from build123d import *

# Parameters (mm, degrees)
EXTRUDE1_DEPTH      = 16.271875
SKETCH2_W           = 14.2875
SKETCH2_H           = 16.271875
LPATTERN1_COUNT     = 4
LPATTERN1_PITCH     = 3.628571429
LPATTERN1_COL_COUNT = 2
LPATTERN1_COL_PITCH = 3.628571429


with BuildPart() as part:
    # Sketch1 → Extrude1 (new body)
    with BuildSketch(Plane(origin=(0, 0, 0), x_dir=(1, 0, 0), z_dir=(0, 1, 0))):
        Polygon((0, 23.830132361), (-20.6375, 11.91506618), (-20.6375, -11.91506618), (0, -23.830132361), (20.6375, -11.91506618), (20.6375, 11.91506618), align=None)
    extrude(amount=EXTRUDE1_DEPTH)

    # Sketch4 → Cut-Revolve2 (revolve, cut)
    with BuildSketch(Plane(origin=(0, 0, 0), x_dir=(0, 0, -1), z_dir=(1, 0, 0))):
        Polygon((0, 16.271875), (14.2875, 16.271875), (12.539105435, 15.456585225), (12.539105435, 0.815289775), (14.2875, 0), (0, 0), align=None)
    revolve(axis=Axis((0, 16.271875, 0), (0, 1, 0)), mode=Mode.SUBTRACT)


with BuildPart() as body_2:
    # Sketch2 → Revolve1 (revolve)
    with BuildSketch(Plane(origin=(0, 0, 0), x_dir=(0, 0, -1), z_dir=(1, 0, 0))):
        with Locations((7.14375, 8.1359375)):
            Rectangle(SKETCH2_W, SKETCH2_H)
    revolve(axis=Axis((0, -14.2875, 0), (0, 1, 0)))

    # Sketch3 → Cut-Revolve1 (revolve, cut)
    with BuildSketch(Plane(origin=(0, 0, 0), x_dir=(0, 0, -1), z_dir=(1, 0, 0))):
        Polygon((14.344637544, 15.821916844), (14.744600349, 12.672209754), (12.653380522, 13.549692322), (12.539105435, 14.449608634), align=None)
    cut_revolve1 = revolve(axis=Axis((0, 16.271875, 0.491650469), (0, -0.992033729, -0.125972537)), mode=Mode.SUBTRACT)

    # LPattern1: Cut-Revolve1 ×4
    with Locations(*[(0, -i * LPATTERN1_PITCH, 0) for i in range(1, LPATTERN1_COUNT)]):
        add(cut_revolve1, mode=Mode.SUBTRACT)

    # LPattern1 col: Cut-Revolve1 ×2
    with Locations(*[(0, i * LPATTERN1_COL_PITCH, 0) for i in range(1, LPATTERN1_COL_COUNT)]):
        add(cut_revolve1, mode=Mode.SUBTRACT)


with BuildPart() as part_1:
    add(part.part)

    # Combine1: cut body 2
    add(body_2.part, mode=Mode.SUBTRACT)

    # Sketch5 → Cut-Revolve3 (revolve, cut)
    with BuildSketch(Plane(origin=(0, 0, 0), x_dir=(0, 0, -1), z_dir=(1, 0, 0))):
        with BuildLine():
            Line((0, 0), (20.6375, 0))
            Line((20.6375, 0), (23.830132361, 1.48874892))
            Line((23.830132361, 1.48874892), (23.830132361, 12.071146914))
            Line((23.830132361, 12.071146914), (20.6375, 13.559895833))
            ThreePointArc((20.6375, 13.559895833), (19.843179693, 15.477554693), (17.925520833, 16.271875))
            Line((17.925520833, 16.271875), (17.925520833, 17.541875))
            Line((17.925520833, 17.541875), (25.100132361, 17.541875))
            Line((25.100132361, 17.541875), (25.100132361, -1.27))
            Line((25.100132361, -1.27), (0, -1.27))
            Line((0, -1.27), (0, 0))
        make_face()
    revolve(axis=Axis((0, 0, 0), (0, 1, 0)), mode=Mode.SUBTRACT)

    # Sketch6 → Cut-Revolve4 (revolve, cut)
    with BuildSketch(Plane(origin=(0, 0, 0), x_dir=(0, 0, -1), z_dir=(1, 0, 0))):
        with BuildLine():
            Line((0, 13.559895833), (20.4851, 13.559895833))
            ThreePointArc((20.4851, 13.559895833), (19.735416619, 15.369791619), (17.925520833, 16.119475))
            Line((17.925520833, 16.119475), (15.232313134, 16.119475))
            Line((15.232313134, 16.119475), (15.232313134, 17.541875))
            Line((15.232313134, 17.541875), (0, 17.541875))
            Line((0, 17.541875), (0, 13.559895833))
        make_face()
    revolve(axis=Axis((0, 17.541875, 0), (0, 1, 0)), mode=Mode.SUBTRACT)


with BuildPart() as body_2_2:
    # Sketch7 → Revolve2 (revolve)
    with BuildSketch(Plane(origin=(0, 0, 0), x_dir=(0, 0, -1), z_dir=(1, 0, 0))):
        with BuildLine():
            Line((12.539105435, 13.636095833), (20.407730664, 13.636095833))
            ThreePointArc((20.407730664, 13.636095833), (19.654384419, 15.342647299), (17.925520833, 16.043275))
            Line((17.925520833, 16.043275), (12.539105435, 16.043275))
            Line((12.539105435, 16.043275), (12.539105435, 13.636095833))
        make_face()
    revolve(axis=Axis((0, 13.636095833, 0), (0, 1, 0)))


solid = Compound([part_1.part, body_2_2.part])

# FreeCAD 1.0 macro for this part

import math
import FreeCAD as App
import Part
import Sketcher
Q = App.Units.Quantity

doc = App.newDocument("Part")
params = doc.addObject("Spreadsheet::Sheet", "Params")
for row, (alias, value) in enumerate([
    ("pad1_length", "0.640625 in"),
    ("sketch2_width", "0.640625 in"),
    ("sketch2_height", "0.5625 in"),
    ("groove_angle", "360 deg"),
    ("sketch3_width", "0.640625 in"),
    ("sketch3_height", "0.5625 in"),
    ("revolution_angle", "360 deg"),
    ("sketch4_length", "0.125 in"),
    ("groove2_angle", "360 deg"),
    ("linearpattern_pitch", "3.628571 mm"),
    ("linearpattern2_pitch", "3.628571 mm"),
    ("sketch5_width", "0.05 in"),
    ("sketch5_height", "0.8125 in"),
    ("groove3_angle", "360 deg"),
    ("sketch6_width", "0.056 in"),
    ("groove4_angle", "360 deg"),
    ("revolution2_angle", "360 deg"),
], start=1):
    params.set(f"A{row}", alias)
    params.set(f"B{row}", "=" + value)
    params.setAlias(f"B{row}", alias)

body = doc.addObject("PartDesign::Body", "Body")

sketch1 = body.newObject("Sketcher::SketchObject", "Sketch")
sketch1.AttachmentSupport = (doc.getObject("XZ_Plane"), [""])
sketch1.MapMode = "FlatFace"
sketch1.addGeometry(Part.LineSegment(App.Vector(0, -24, 0), App.Vector(-21, -12, 0)), False)
sketch1.addGeometry(Part.LineSegment(App.Vector(-21, -12, 0), App.Vector(-21, 12, 0)), False)
sketch1.addGeometry(Part.LineSegment(App.Vector(-21, 12, 0), App.Vector(0, 24, 0)), False)
sketch1.addGeometry(Part.LineSegment(App.Vector(0, 24, 0), App.Vector(21, 12, 0)), False)
sketch1.addGeometry(Part.LineSegment(App.Vector(21, 12, 0), App.Vector(21, -12, 0)), False)
sketch1.addGeometry(Part.LineSegment(App.Vector(21, -12, 0), App.Vector(0, -24, 0)), False)
sketch1.addConstraint(Sketcher.Constraint("Coincident", 0, 2, 1, 1))
sketch1.addConstraint(Sketcher.Constraint("Coincident", 1, 2, 2, 1))
sketch1.addConstraint(Sketcher.Constraint("Coincident", 2, 2, 3, 1))
sketch1.addConstraint(Sketcher.Constraint("Coincident", 3, 2, 4, 1))
sketch1.addConstraint(Sketcher.Constraint("Coincident", 4, 2, 5, 1))
sketch1.addConstraint(Sketcher.Constraint("Coincident", 5, 2, 0, 1))
sketch1.addConstraint(Sketcher.Constraint("Vertical", 1))
sketch1.addConstraint(Sketcher.Constraint("Vertical", 4))
sketch1.addConstraint(Sketcher.Constraint("Symmetric", 0, 2, 3, 2, -1, 1))
sketch1.addConstraint(Sketcher.Constraint("Symmetric", 2, 2, 5, 2, -1, 1))
sketch1.addConstraint(Sketcher.Constraint("PointOnObject", 2, 2, -2))
sketch1.addConstraint(Sketcher.Constraint("Parallel", 2, 5))
sketch1.addConstraint(Sketcher.Constraint("Horizontal", 1, 2, 3, 2))
sketch1.addConstraint(Sketcher.Constraint("Angle", 0, Q("150 deg")))
sketch1.addConstraint(Sketcher.Constraint("DistanceX", 0, 2, -1, 1, Q("0.8125 in")))
sketch1.addConstraint(Sketcher.Constraint("DistanceY", 0, 2, 2, 2, 35.745199))
pad1 = body.newObject("PartDesign::Pad", "Pad")
pad1.Profile = sketch1
pad1.setExpression("Length", "Params.pad1_length")
pad1.Reversed = True

sketch2 = body.newObject("Sketcher::SketchObject", "Sketch001")
sketch2.AttachmentSupport = (doc.getObject("YZ_Plane"), [""])
sketch2.MapMode = "FlatFace"
sketch2.addGeometry(Part.LineSegment(App.Vector(16.3, -14.3, 0), App.Vector(16.3, 0, 0)), False)
sketch2.addGeometry(Part.LineSegment(App.Vector(16.3, 0, 0), App.Vector(0, 0, 0)), False)
sketch2.addGeometry(Part.LineSegment(App.Vector(0, 0, 0), App.Vector(0, -14.3, 0)), False)
sketch2.addGeometry(Part.LineSegment(App.Vector(0, -14.3, 0), App.Vector(0.8, -12.5, 0)), False)
sketch2.addGeometry(Part.LineSegment(App.Vector(0.8, -12.5, 0), App.Vector(15.5, -12.5, 0)), False)
sketch2.addGeometry(Part.LineSegment(App.Vector(15.5, -12.5, 0), App.Vector(16.3, -14.3, 0)), False)
sketch2.addConstraint(Sketcher.Constraint("Coincident", 0, 2, 1, 1))
sketch2.addConstraint(Sketcher.Constraint("Coincident", 1, 2, 2, 1))
sketch2.addConstraint(Sketcher.Constraint("Coincident", 2, 2, 3, 1))
sketch2.addConstraint(Sketcher.Constraint("Coincident", 3, 2, 4, 1))
sketch2.addConstraint(Sketcher.Constraint("Coincident", 4, 2, 5, 1))
sketch2.addConstraint(Sketcher.Constraint("Coincident", 5, 2, 0, 1))
sketch2.addConstraint(Sketcher.Constraint("Vertical", 0))
sketch2.addConstraint(Sketcher.Constraint("Horizontal", 1))
sketch2.addConstraint(Sketcher.Constraint("Vertical", 2))
sketch2.addConstraint(Sketcher.Constraint("Horizontal", 4))
sketch2.addConstraint(Sketcher.Constraint("Coincident", 1, 2, -1, 1))
sketch2.addConstraint(Sketcher.Constraint("Horizontal", 2, 2, 5, 2))
sketch2.addConstraint(Sketcher.Constraint("Equal", 3, 5))
sketch2.addConstraint(Sketcher.Constraint("Angle", 3, Q("65 deg")))
sketch2.addConstraint(Sketcher.Constraint("DistanceX", 1, 2, 1, 1, Q("0.640625 in")))
sketch2.addConstraint(Sketcher.Constraint("DistanceY", 0, 1, 0, 2, Q("0.5625 in")))
sketch2.addConstraint(Sketcher.Constraint("Distance", 3, 1.92914))
sketch2.setExpression("Constraints[14]", "Params.sketch2_width")
sketch2.setExpression("Constraints[15]", "Params.sketch2_height")
groove = body.newObject("PartDesign::Groove", "Groove")
groove.Profile = sketch2
groove.ReferenceAxis = (sketch2, ["H_Axis"])
groove.setExpression("Angle", "Params.groove_angle")
body2 = doc.addObject("PartDesign::Body", "Body001")

sketch3 = body2.newObject("Sketcher::SketchObject", "Sketch002")
sketch3.AttachmentSupport = (doc.getObject("YZ_Plane001"), [""])
sketch3.MapMode = "FlatFace"
sketch3.addGeometry(Part.LineSegment(App.Vector(16, 0, 0), App.Vector(0, 0, 0)), False)
sketch3.addGeometry(Part.LineSegment(App.Vector(0, 0, 0), App.Vector(0, -14, 0)), False)
sketch3.addGeometry(Part.LineSegment(App.Vector(0, -14, 0), App.Vector(16, -14, 0)), False)
sketch3.addGeometry(Part.LineSegment(App.Vector(16, -14, 0), App.Vector(16, 0, 0)), False)
sketch3.addConstraint(Sketcher.Constraint("Coincident", 0, 2, 1, 1))
sketch3.addConstraint(Sketcher.Constraint("Coincident", 1, 2, 2, 1))
sketch3.addConstraint(Sketcher.Constraint("Coincident", 2, 2, 3, 1))
sketch3.addConstraint(Sketcher.Constraint("Coincident", 3, 2, 0, 1))
sketch3.addConstraint(Sketcher.Constraint("Horizontal", 0))
sketch3.addConstraint(Sketcher.Constraint("Vertical", 1))
sketch3.addConstraint(Sketcher.Constraint("Horizontal", 2))
sketch3.addConstraint(Sketcher.Constraint("Vertical", 3))
sketch3.addConstraint(Sketcher.Constraint("Coincident", 0, 2, -1, 1))
sketch3.addConstraint(Sketcher.Constraint("DistanceX", 0, 2, 0, 1, Q("0.640625 in")))
sketch3.addConstraint(Sketcher.Constraint("DistanceY", 1, 2, 1, 1, Q("0.5625 in")))
sketch3.setExpression("Constraints[9]", "Params.sketch3_width")
sketch3.setExpression("Constraints[10]", "Params.sketch3_height")
revolution = body2.newObject("PartDesign::Revolution", "Revolution")
revolution.Profile = sketch3
revolution.ReferenceAxis = (sketch3, ["H_Axis"])
revolution.setExpression("Angle", "Params.revolution_angle")

sketch4 = body2.newObject("Sketcher::SketchObject", "Sketch003")
sketch4.AttachmentSupport = (doc.getObject("YZ_Plane001"), [""])
sketch4.MapMode = "FlatFace"
sketch4.addGeometry(Part.LineSegment(App.Vector(12.7, -14.7, 0), App.Vector(15.8, -14.3, 0)), False)
sketch4.addGeometry(Part.LineSegment(App.Vector(15.8, -14.3, 0), App.Vector(14.4, -12.5, 0)), False)
sketch4.addGeometry(Part.LineSegment(App.Vector(14.4, -12.5, 0), App.Vector(13.5, -12.7, 0)), False)
sketch4.addGeometry(Part.LineSegment(App.Vector(13.5, -12.7, 0), App.Vector(12.7, -14.7, 0)), False)
sketch4.addGeometry(Part.LineSegment(App.Vector(14, 0.2, 0), App.Vector(10.8, -0.2, 0)), True)
sketch4.addConstraint(Sketcher.Constraint("Coincident", 0, 2, 1, 1))
sketch4.addConstraint(Sketcher.Constraint("Coincident", 1, 2, 2, 1))
sketch4.addConstraint(Sketcher.Constraint("Coincident", 2, 2, 3, 1))
sketch4.addConstraint(Sketcher.Constraint("Coincident", 3, 2, 0, 1))
sketch4.addConstraint(Sketcher.Constraint("Parallel", 0, 2))
sketch4.addConstraint(Sketcher.Constraint("Parallel", 2, 4))
sketch4.addConstraint(Sketcher.Constraint("Equal", 1, 3))
sketch4.addConstraint(Sketcher.Constraint("Equal", 0, 4))
sketch4.addConstraint(Sketcher.Constraint("Distance", 0, Q("0.125 in")))
sketch4.addConstraint(Sketcher.Constraint("DistanceY", 3, 2, -1, 1, 14.7446))
sketch4.addConstraint(Sketcher.Constraint("DistanceX", 3, 2, 1, 2, 1.777399))
sketch4.addConstraint(Sketcher.Constraint("DistanceY", 2, 2, 4, 2, 12.453399))
sketch4.addConstraint(Sketcher.Constraint("DistanceX", -1, 1, 1, 2, 14.449609))
sketch4.addConstraint(Sketcher.Constraint("DistanceY", 2, 2, -1, 1, 12.653381))
sketch4.addConstraint(Sketcher.Constraint("DistanceX", -1, 1, 4, 1, 13.974981))
sketch4.addConstraint(Sketcher.Constraint("DistanceY", -1, 1, 4, 1, 0.199981))
sketch4.setExpression("Constraints[8]", "Params.sketch4_length")
groove2 = body2.newObject("PartDesign::Groove", "Groove001")
groove2.Profile = sketch4
groove2.ReferenceAxis = (sketch4, ["Axis0"])
groove2.setExpression("Angle", "Params.groove2_angle")
doc.recompute()

linearpattern = body2.newObject("PartDesign::LinearPattern", "LinearPattern")
linearpattern.Originals = [groove2]
linearpattern.Direction = (doc.getObject("Y_Axis001"), [""])
linearpattern.Mode = "offset"
linearpattern.setExpression("Offset", "Params.linearpattern_pitch")
linearpattern.Occurrences = 4
linearpattern.Reversed = True
body2.Tip = linearpattern
doc.recompute()

linearpattern2 = body2.newObject("PartDesign::LinearPattern", "LinearPattern001")
linearpattern2.Originals = [groove2]
linearpattern2.Direction = (doc.getObject("Y_Axis001"), [""])
linearpattern2.Mode = "offset"
linearpattern2.setExpression("Offset", "Params.linearpattern2_pitch")
linearpattern2.Occurrences = 2
body2.Tip = linearpattern2
doc.recompute()

boolean = body.newObject("PartDesign::Boolean", "Boolean")
boolean.Type = "Cut"
boolean.addObjects([body2])

sketch5 = body.newObject("Sketcher::SketchObject", "Sketch004")
sketch5.AttachmentSupport = (doc.getObject("YZ_Plane"), [""])
sketch5.MapMode = "FlatFace"
sketch5.addGeometry(Part.LineSegment(App.Vector(0, -20.6, 0), App.Vector(0, 0, 0)), False)
sketch5.addGeometry(Part.LineSegment(App.Vector(0, 0, 0), App.Vector(-1.3, 0, 0)), False)
sketch5.addGeometry(Part.LineSegment(App.Vector(-1.3, 0, 0), App.Vector(-1.3, -25.1, 0)), False)
sketch5.addGeometry(Part.LineSegment(App.Vector(-1.3, -25.1, 0), App.Vector(17.5, -25.1, 0)), False)
sketch5.addGeometry(Part.LineSegment(App.Vector(17.5, -25.1, 0), App.Vector(17.5, -17.9, 0)), False)
sketch5.addGeometry(Part.LineSegment(App.Vector(17.5, -17.9, 0), App.Vector(16.3, -17.9, 0)), False)
sketch5.addGeometry(Part.ArcOfCircle(Part.Circle(App.Vector(13.6, -17.9, 0), App.Vector(0, 0, 1), 2.7), math.radians(-90), math.radians(0)), False)
sketch5.addGeometry(Part.LineSegment(App.Vector(13.6, -20.6, 0), App.Vector(12.1, -23.8, 0)), False)
sketch5.addGeometry(Part.LineSegment(App.Vector(12.1, -23.8, 0), App.Vector(1.5, -23.8, 0)), False)
sketch5.addGeometry(Part.LineSegment(App.Vector(1.5, -23.8, 0), App.Vector(0, -20.6, 0)), False)
sketch5.addConstraint(Sketcher.Constraint("Coincident", 0, 2, 1, 1))
sketch5.addConstraint(Sketcher.Constraint("Coincident", 1, 2, 2, 1))
sketch5.addConstraint(Sketcher.Constraint("Coincident", 2, 2, 3, 1))
sketch5.addConstraint(Sketcher.Constraint("Coincident", 3, 2, 4, 1))
sketch5.addConstraint(Sketcher.Constraint("Coincident", 4, 2, 5, 1))
sketch5.addConstraint(Sketcher.Constraint("Coincident", 5, 2, 6, 2))
sketch5.addConstraint(Sketcher.Constraint("Coincident", 6, 1, 7, 1))
sketch5.addConstraint(Sketcher.Constraint("Coincident", 7, 2, 8, 1))
sketch5.addConstraint(Sketcher.Constraint("Coincident", 8, 2, 9, 1))
sketch5.addConstraint(Sketcher.Constraint("Coincident", 9, 2, 0, 1))
sketch5.addConstraint(Sketcher.Constraint("Vertical", 0))
sketch5.addConstraint(Sketcher.Constraint("Horizontal", 1))
sketch5.addConstraint(Sketcher.Constraint("Vertical", 2))
sketch5.addConstraint(Sketcher.Constraint("Horizontal", 3))
sketch5.addConstraint(Sketcher.Constraint("Vertical", 4))
sketch5.addConstraint(Sketcher.Constraint("Horizontal", 5))
sketch5.addConstraint(Sketcher.Constraint("Horizontal", 8))
sketch5.addConstraint(Sketcher.Constraint("Coincident", 0, 2, -1, 1))
sketch5.addConstraint(Sketcher.Constraint("Horizontal", 6, 3, 4, 2))
sketch5.addConstraint(Sketcher.Constraint("Horizontal", 6, 1, 9, 2))
sketch5.addConstraint(Sketcher.Constraint("Equal", 1, 5))
sketch5.addConstraint(Sketcher.Constraint("Equal", 7, 9))
sketch5.addConstraint(Sketcher.Constraint("Angle", 7, Q("-115 deg")))
sketch5.addConstraint(Sketcher.Constraint("DistanceX", 1, 2, 1, 1, Q("0.05 in")))
sketch5.addConstraint(Sketcher.Constraint("DistanceY", 0, 1, 0, 2, Q("0.8125 in")))
sketch5.addConstraint(Sketcher.Constraint("DistanceY", 3, 2, 7, 2, Q("0.05 in")))
sketch5.addConstraint(Sketcher.Constraint("DistanceX", -1, 1, 5, 2, Q("0.640625 in")))
sketch5.addConstraint(Sketcher.Constraint("Radius", 6, 2.711979))
sketch5.addConstraint(Sketcher.Constraint("DistanceY", 4, 1, 4, 2, 7.174612))
sketch5.addConstraint(Sketcher.Constraint("DistanceX", 8, 2, 8, 1, 10.582398))
sketch5.setExpression("Constraints[23]", "Params.sketch5_width")
sketch5.setExpression("Constraints[24]", "Params.sketch5_height")
groove3 = body.newObject("PartDesign::Groove", "Groove002")
groove3.Profile = sketch5
groove3.ReferenceAxis = (sketch5, ["H_Axis"])
groove3.setExpression("Angle", "Params.groove3_angle")

sketch6 = body.newObject("Sketcher::SketchObject", "Sketch005")
sketch6.AttachmentSupport = (doc.getObject("YZ_Plane"), [""])
sketch6.MapMode = "FlatFace"
sketch6.addGeometry(Part.LineSegment(App.Vector(13.6, 0, 0), App.Vector(13.6, -20.5, 0)), False)
sketch6.addGeometry(Part.ArcOfCircle(Part.Circle(App.Vector(13.6, -17.9, 0), App.Vector(0, 0, 1), 2.6), math.radians(-90), math.radians(0)), False)
sketch6.addGeometry(Part.LineSegment(App.Vector(16.1, -17.9, 0), App.Vector(16.1, -15.2, 0)), False)
sketch6.addGeometry(Part.LineSegment(App.Vector(16.1, -15.2, 0), App.Vector(17.5, -15.2, 0)), False)
sketch6.addGeometry(Part.LineSegment(App.Vector(17.5, -15.2, 0), App.Vector(17.5, 0, 0)), False)
sketch6.addGeometry(Part.LineSegment(App.Vector(17.5, 0, 0), App.Vector(13.6, 0, 0)), False)
sketch6.addConstraint(Sketcher.Constraint("Coincident", 0, 2, 1, 1))
sketch6.addConstraint(Sketcher.Constraint("Tangent", 1, 2, 2, 1))
sketch6.addConstraint(Sketcher.Constraint("Coincident", 2, 2, 3, 1))
sketch6.addConstraint(Sketcher.Constraint("Coincident", 3, 2, 4, 1))
sketch6.addConstraint(Sketcher.Constraint("Coincident", 4, 2, 5, 1))
sketch6.addConstraint(Sketcher.Constraint("Coincident", 5, 2, 0, 1))
sketch6.addConstraint(Sketcher.Constraint("Vertical", 0))
sketch6.addConstraint(Sketcher.Constraint("Vertical", 2))
sketch6.addConstraint(Sketcher.Constraint("Horizontal", 3))
sketch6.addConstraint(Sketcher.Constraint("Vertical", 4))
sketch6.addConstraint(Sketcher.Constraint("Horizontal", 5))
sketch6.addConstraint(Sketcher.Constraint("PointOnObject", 4, 2, -1))
sketch6.addConstraint(Sketcher.Constraint("Vertical", 1, 3, 0, 2))
sketch6.addConstraint(Sketcher.Constraint("DistanceX", 3, 1, 3, 2, Q("0.056 in")))
sketch6.addConstraint(Sketcher.Constraint("DistanceY", 0, 2, 0, 1, Q("0.8065 in")))
sketch6.addConstraint(Sketcher.Constraint("Radius", 1, 2.559579))
sketch6.addConstraint(Sketcher.Constraint("DistanceY", 2, 1, 2, 2, 2.693208))
sketch6.addConstraint(Sketcher.Constraint("DistanceX", -1, 1, 1, 3, 13.559896))
sketch6.setExpression("Constraints[13]", "Params.sketch6_width")
groove4 = body.newObject("PartDesign::Groove", "Groove003")
groove4.Profile = sketch6
groove4.ReferenceAxis = (sketch6, ["H_Axis"])
groove4.setExpression("Angle", "Params.groove4_angle")
body3 = doc.addObject("PartDesign::Body", "Body002")

sketch7 = body3.newObject("Sketcher::SketchObject", "Sketch006")
sketch7.AttachmentSupport = (doc.getObject("YZ_Plane002"), [""])
sketch7.MapMode = "FlatFace"
sketch7.addGeometry(Part.LineSegment(App.Vector(13.6, -12.5, 0), App.Vector(13.6, -20.4, 0)), False)
sketch7.addGeometry(Part.ArcOfCircle(Part.Circle(App.Vector(13.6, -17.9, 0), App.Vector(0, 0, 1), 2.5), math.radians(-88), math.radians(0)), False)
sketch7.addGeometry(Part.LineSegment(App.Vector(16, -17.9, 0), App.Vector(16, -12.5, 0)), False)
sketch7.addGeometry(Part.LineSegment(App.Vector(16, -12.5, 0), App.Vector(13.6, -12.5, 0)), False)
sketch7.addConstraint(Sketcher.Constraint("Coincident", 0, 2, 1, 1))
sketch7.addConstraint(Sketcher.Constraint("Tangent", 1, 2, 2, 1))
sketch7.addConstraint(Sketcher.Constraint("Coincident", 2, 2, 3, 1))
sketch7.addConstraint(Sketcher.Constraint("Coincident", 3, 2, 0, 1))
sketch7.addConstraint(Sketcher.Constraint("Vertical", 0))
sketch7.addConstraint(Sketcher.Constraint("Vertical", 2))
sketch7.addConstraint(Sketcher.Constraint("Horizontal", 3))
sketch7.addConstraint(Sketcher.Constraint("Radius", 1, 2.483379))
sketch7.addConstraint(Sketcher.Constraint("DistanceX", 1, 3, 0, 2, Q("0.003 in")))
sketch7.addConstraint(Sketcher.Constraint("DistanceY", 0, 2, 0, 1, 7.868625))
sketch7.addConstraint(Sketcher.Constraint("DistanceY", 1, 3, -1, 1, 17.925521))
sketch7.addConstraint(Sketcher.Constraint("DistanceX", -1, 1, 1, 3, 13.559896))
revolution2 = body3.newObject("PartDesign::Revolution", "Revolution001")
revolution2.Profile = sketch7
revolution2.ReferenceAxis = (sketch7, ["H_Axis"])
revolution2.setExpression("Angle", "Params.revolution2_angle")

doc.recompute()
